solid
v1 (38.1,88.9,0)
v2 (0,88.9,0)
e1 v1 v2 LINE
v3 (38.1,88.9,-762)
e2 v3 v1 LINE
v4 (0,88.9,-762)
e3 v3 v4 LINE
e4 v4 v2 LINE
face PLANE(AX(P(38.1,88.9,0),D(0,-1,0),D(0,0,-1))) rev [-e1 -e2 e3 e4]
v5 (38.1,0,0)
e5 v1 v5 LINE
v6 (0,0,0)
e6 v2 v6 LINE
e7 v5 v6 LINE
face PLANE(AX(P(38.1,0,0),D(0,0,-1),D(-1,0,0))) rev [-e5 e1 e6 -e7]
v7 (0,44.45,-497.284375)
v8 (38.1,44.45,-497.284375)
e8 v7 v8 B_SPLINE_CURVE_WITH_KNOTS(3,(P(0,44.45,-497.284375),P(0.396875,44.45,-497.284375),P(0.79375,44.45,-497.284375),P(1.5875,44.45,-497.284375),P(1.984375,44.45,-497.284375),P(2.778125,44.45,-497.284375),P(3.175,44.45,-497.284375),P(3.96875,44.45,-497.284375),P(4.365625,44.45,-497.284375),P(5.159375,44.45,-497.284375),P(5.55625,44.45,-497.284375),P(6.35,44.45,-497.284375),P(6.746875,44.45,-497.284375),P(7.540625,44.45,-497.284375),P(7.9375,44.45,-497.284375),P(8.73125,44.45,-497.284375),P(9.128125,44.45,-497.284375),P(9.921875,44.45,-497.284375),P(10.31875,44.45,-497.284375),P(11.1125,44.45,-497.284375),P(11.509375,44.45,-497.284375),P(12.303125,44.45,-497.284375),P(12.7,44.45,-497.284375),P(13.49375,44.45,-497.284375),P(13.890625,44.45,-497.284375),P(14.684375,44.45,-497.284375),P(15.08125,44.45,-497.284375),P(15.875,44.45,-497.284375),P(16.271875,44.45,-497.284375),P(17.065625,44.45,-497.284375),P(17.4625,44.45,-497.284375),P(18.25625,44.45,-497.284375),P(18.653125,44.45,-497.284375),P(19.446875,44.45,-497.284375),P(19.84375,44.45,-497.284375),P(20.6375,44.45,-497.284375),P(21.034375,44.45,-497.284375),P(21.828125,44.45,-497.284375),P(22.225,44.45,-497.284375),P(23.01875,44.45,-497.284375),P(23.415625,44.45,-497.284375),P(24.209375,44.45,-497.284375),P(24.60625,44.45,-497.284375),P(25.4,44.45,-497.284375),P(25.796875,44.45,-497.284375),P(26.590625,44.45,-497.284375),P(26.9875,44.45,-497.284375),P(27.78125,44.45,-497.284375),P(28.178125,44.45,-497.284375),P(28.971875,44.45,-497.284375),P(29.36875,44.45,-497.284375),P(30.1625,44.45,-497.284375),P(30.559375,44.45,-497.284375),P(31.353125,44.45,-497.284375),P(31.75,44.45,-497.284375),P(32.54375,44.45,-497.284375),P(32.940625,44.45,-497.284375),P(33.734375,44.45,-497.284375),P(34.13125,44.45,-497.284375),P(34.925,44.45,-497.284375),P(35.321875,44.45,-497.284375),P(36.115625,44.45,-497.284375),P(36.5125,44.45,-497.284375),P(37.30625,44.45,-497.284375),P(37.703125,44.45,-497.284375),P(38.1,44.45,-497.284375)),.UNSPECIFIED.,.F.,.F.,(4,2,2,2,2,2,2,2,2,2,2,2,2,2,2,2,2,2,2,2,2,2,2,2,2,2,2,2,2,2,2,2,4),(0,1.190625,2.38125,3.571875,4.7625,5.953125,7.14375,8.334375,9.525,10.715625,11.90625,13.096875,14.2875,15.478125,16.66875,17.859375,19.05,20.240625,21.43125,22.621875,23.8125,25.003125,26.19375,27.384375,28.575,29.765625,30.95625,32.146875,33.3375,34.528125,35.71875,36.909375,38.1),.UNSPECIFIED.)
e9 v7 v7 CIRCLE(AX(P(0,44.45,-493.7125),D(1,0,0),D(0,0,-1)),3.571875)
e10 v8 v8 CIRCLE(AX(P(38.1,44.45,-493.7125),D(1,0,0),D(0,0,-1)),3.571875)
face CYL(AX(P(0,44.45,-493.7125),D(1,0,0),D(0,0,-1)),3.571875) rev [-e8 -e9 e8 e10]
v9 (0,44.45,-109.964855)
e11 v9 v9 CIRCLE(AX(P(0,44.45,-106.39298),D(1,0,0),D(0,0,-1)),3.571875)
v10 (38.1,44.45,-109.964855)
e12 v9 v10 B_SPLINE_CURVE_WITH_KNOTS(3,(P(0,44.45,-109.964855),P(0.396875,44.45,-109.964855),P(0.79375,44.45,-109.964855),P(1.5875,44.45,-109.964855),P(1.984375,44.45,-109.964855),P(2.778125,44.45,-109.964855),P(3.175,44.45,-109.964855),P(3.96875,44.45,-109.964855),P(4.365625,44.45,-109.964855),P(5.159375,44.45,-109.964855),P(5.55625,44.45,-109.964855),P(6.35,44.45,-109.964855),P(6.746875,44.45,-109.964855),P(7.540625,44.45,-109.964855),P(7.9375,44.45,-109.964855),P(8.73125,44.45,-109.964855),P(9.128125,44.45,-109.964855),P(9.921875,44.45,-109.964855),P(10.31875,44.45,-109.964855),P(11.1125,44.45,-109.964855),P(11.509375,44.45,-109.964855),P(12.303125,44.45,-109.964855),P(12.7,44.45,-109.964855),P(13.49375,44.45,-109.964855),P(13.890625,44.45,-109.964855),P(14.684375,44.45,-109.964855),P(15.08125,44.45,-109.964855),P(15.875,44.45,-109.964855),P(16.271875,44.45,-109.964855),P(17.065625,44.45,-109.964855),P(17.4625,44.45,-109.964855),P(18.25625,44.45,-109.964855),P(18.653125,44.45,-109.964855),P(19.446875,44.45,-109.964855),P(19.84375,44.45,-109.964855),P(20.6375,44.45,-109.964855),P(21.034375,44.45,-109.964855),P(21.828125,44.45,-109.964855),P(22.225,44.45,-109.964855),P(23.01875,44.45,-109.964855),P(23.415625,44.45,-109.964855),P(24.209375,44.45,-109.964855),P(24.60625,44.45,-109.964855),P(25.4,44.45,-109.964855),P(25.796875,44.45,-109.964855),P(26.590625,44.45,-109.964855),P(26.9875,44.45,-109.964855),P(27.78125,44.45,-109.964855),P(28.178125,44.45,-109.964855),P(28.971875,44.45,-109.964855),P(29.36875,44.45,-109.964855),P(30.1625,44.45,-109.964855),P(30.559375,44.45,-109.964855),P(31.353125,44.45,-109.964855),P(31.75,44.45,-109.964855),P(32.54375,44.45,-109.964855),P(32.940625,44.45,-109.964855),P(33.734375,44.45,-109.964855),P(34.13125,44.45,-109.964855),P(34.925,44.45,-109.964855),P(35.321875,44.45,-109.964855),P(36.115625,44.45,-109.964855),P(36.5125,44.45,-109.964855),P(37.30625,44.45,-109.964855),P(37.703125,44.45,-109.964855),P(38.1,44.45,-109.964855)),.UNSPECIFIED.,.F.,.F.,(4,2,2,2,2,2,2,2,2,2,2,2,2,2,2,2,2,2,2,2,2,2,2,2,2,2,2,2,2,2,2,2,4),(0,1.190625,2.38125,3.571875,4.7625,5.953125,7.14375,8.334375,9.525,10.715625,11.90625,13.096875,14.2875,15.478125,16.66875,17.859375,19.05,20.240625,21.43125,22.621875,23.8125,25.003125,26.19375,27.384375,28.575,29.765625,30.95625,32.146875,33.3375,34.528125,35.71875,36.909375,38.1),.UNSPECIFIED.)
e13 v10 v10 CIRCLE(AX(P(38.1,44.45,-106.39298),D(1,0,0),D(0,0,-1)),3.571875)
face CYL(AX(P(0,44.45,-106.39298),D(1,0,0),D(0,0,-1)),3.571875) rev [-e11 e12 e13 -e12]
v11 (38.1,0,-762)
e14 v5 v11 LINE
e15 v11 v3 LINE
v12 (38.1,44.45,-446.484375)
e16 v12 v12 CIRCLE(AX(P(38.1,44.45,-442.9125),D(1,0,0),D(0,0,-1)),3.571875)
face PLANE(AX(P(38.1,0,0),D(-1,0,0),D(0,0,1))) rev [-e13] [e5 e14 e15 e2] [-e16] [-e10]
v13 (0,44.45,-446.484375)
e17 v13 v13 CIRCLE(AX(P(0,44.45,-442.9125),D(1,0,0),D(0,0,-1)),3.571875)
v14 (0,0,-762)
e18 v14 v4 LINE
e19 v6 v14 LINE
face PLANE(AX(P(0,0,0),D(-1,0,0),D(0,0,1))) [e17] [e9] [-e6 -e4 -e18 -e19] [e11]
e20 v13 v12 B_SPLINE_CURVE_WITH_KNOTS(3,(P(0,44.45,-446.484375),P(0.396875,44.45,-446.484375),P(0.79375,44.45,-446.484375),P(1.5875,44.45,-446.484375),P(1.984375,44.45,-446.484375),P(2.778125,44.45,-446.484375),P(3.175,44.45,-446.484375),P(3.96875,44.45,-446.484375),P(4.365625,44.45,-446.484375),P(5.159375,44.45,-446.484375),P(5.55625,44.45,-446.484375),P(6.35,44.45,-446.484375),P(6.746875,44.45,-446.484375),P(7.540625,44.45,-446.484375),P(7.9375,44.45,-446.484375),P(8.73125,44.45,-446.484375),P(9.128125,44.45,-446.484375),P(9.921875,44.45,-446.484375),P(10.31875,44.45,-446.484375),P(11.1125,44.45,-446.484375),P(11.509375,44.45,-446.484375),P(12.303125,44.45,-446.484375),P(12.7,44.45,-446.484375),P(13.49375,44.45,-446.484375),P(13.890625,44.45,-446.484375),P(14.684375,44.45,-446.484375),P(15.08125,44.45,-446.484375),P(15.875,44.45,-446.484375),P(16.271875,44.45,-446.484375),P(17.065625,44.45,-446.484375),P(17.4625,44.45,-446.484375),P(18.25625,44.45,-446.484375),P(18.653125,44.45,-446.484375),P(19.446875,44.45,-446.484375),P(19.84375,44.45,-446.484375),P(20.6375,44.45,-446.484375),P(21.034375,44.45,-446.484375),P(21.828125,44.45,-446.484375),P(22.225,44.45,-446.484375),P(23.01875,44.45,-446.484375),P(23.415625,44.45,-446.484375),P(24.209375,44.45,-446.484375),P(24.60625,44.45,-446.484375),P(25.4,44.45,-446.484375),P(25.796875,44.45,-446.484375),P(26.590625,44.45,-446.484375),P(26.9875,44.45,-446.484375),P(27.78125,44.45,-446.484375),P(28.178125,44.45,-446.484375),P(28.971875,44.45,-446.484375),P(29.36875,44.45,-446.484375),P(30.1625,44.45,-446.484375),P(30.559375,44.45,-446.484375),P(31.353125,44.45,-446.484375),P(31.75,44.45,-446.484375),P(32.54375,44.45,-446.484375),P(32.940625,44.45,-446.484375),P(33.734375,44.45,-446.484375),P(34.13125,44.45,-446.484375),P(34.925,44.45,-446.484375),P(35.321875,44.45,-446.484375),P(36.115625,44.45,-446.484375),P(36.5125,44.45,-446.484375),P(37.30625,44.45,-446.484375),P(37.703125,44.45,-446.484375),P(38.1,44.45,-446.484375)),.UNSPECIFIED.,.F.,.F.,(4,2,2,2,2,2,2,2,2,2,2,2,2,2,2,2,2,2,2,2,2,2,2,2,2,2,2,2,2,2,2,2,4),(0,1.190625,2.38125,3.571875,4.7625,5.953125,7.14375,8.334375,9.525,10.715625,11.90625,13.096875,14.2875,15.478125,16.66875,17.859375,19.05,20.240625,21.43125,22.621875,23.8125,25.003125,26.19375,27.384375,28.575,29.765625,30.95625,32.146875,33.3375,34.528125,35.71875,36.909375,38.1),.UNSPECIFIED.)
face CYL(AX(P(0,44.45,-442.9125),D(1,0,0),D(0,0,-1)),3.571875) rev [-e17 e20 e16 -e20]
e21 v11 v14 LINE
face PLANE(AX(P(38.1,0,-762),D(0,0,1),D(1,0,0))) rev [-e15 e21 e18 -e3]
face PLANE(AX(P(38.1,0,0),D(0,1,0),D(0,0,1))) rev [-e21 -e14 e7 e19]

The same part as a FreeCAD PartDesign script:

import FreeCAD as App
import Part
import Sketcher
Q = App.Units.Quantity

doc = App.newDocument("Part")
body = doc.addObject("PartDesign::Body", "Body")

sketch1 = body.newObject("Sketcher::SketchObject", "Sketch")
sketch1.AttachmentSupport = (doc.getObject("YZ_Plane"), [""])
sketch1.MapMode = "FlatFace"
sketch1.addGeometry(Part.LineSegment(App.Vector(89, 0, 0), App.Vector(0, 0, 0)), False)
sketch1.addGeometry(Part.LineSegment(App.Vector(0, 0, 0), App.Vector(0, -762, 0)), False)
sketch1.addGeometry(Part.LineSegment(App.Vector(0, -762, 0), App.Vector(89, -762, 0)), False)
sketch1.addGeometry(Part.LineSegment(App.Vector(89, -762, 0), App.Vector(89, 0, 0)), False)
sketch1.addConstraint(Sketcher.Constraint("Coincident", 0, 2, 1, 1))
sketch1.addConstraint(Sketcher.Constraint("Coincident", 1, 2, 2, 1))
sketch1.addConstraint(Sketcher.Constraint("Coincident", 2, 2, 3, 1))
sketch1.addConstraint(Sketcher.Constraint("Coincident", 3, 2, 0, 1))
sketch1.addConstraint(Sketcher.Constraint("Horizontal", 0))
sketch1.addConstraint(Sketcher.Constraint("Vertical", 1))
sketch1.addConstraint(Sketcher.Constraint("Horizontal", 2))
sketch1.addConstraint(Sketcher.Constraint("Vertical", 3))
sketch1.addConstraint(Sketcher.Constraint("Coincident", 0, 2, -1, 1))
sketch1.addConstraint(Sketcher.Constraint("DistanceY", 1, 2, 1, 1, Q("30 in")))
sketch1.addConstraint(Sketcher.Constraint("DistanceX", 0, 2, 0, 1, Q("3.5 in")))
pad1 = body.newObject("PartDesign::Pad", "Pad")
pad1.Profile = sketch1
pad1.Length = Q("1.5 in")

sketch2 = body.newObject("Sketcher::SketchObject", "Sketch001")
sketch2.AttachmentSupport = (doc.getObject("YZ_Plane"), [""])
sketch2.MapMode = "FlatFace"
sketch2.AttachmentOffset = App.Placement(App.Vector(0, 0, 1.5 * 25.4), App.Rotation())
sketch2.addGeometry(Part.Circle(App.Vector(44.5, -106.4, 0), App.Vector(0, 0, 1), 3.6), False)
sketch2.addGeometry(Part.Circle(App.Vector(44.5, -442.9, 0), App.Vector(0, 0, 1), 3.6), False)
sketch2.addGeometry(Part.Circle(App.Vector(44.5, -493.7, 0), App.Vector(0, 0, 1), 3.6), False)
sketch2.addConstraint(Sketcher.Constraint("Equal", 0, 1))
sketch2.addConstraint(Sketcher.Constraint("Equal", 1, 2))
sketch2.addConstraint(Sketcher.Constraint("Vertical", 0, 3, 1, 3))
sketch2.addConstraint(Sketcher.Constraint("Vertical", 1, 3, 2, 3))
sketch2.addConstraint(Sketcher.Constraint("Diameter", 0, Q("0.28125 in")))
sketch2.addConstraint(Sketcher.Constraint("DistanceY", 2, 3, 1, 3, Q("2 in")))
sketch2.addConstraint(Sketcher.Constraint("DistanceX", -1, 1, 0, 3, Q("1.75 in")))
sketch2.addConstraint(Sketcher.Constraint("DistanceY", 1, 3, -1, 1, Q("17.4375 in")))
sketch2.addConstraint(Sketcher.Constraint("DistanceY", 0, 3, -1, 1, Q("4.1887 in")))
pocket1 = body.newObject("PartDesign::Pocket", "Pocket")
pocket1.Profile = sketch2
pocket1.Type = "ThroughAll"

doc.recompute()
